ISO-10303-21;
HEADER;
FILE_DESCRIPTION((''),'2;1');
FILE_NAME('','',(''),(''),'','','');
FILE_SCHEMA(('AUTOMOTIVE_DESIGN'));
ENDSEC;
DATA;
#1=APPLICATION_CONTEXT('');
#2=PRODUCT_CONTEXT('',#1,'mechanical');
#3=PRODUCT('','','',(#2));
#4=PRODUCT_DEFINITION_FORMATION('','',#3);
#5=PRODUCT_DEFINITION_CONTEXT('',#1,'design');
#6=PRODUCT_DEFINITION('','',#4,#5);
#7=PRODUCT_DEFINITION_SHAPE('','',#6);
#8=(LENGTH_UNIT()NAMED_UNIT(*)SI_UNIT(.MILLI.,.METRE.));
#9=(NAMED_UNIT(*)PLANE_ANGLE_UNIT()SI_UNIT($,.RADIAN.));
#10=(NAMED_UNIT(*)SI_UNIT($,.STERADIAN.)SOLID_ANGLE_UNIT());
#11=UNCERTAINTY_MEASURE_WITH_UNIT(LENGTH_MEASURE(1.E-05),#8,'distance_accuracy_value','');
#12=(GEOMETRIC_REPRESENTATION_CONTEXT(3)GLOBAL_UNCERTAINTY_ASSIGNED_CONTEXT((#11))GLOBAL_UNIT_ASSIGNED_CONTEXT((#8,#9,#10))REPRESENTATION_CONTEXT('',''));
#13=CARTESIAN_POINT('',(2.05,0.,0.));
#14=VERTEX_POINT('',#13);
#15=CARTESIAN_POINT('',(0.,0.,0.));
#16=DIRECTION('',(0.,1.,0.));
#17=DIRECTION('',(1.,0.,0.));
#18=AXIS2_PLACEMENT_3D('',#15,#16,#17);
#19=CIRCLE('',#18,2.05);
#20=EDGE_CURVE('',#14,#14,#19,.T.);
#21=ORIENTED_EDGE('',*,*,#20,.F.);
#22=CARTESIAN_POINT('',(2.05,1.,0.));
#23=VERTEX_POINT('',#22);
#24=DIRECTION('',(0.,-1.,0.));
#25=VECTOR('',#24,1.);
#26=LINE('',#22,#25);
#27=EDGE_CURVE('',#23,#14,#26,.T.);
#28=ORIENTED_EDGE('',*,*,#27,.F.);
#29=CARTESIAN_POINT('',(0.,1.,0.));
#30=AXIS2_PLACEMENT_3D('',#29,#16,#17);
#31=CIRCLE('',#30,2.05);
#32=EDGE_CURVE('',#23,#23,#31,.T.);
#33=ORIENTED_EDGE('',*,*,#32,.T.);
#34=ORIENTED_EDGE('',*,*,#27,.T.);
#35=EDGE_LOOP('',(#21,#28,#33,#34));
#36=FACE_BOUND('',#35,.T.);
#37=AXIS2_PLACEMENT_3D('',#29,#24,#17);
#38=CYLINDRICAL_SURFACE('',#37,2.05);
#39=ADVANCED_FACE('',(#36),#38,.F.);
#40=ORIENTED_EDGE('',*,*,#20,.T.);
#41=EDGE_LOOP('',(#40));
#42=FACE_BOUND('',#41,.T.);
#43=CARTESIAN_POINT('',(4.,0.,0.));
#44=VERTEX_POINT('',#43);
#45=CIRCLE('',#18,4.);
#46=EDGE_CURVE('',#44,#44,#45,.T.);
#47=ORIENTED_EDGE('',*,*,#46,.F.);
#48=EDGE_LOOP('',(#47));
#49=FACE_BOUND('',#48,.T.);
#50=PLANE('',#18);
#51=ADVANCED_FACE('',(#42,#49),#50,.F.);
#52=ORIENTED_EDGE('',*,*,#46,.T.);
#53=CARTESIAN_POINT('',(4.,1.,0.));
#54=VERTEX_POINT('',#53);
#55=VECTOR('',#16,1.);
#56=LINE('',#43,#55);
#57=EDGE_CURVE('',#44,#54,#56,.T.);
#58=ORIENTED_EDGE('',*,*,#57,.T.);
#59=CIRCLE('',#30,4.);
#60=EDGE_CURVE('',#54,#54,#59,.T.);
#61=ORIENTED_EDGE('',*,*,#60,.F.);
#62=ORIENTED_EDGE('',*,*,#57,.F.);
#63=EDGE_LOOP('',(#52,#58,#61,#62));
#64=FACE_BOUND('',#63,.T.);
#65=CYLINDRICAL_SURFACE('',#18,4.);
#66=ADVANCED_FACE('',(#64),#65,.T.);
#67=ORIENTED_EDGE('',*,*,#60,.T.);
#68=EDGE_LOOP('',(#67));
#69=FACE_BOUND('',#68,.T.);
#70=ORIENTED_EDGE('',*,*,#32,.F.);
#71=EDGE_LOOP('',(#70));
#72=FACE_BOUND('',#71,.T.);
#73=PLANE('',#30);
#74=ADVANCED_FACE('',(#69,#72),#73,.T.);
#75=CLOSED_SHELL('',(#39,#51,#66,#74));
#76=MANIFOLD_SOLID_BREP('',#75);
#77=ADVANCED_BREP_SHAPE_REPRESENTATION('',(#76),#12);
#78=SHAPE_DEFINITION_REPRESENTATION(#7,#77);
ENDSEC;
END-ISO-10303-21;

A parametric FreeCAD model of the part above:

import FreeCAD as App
import Part
import Sketcher
Q = App.Units.Quantity


def add_polygon(sketch, points):
    """Adds a closed chain of lines whose ends are joined by coincident constraints."""
    first, n = sketch.GeometryCount, len(points)
    for a, b in zip(points, points[1:] + points[:1]):
        sketch.addGeometry(Part.LineSegment(App.Vector(*a, 0), App.Vector(*b, 0)), False)
    for i in range(n):
        sketch.addConstraint(Sketcher.Constraint("Coincident", first + i, 2, first + (i + 1) % n, 1))

doc = App.newDocument("Part")
body = doc.addObject("PartDesign::Body", "Body")

# Sketch on XY plane
sketch1 = doc.addObject("Sketcher::SketchObject", "Sketch")
body.addObject(sketch1)
sketch1.AttachmentSupport = (doc.XY_Plane, [""])
sketch1.MapMode = "FlatFace"
add_polygon(sketch1, [(2.05, 0), (4, 0), (4, 1), (2.05, 1)])  # lines 0-3
sketch1.addConstraint([
    Sketcher.Constraint("Horizontal", 0),
    Sketcher.Constraint("Vertical", 1),
    Sketcher.Constraint("Horizontal", 2),
    Sketcher.Constraint("Vertical", 3),
    Sketcher.Constraint("PointOnObject", 0, 2, -1),
    Sketcher.Constraint("DistanceY", 1, 1, 1, 2, Q("1 mm")),
    Sketcher.Constraint("DistanceX", -1, 1, 0, 2, Q("4 mm")),
    Sketcher.Constraint("DistanceX", 0, 1, 0, 2, Q("1.95 mm")),
])
revolution = doc.addObject("PartDesign::Revolution", "Revolution")
body.addObject(revolution)
revolution.Profile = sketch1
revolution.ReferenceAxis = (sketch1, ["V_Axis"])
revolution.Angle = 360

doc.recompute()
